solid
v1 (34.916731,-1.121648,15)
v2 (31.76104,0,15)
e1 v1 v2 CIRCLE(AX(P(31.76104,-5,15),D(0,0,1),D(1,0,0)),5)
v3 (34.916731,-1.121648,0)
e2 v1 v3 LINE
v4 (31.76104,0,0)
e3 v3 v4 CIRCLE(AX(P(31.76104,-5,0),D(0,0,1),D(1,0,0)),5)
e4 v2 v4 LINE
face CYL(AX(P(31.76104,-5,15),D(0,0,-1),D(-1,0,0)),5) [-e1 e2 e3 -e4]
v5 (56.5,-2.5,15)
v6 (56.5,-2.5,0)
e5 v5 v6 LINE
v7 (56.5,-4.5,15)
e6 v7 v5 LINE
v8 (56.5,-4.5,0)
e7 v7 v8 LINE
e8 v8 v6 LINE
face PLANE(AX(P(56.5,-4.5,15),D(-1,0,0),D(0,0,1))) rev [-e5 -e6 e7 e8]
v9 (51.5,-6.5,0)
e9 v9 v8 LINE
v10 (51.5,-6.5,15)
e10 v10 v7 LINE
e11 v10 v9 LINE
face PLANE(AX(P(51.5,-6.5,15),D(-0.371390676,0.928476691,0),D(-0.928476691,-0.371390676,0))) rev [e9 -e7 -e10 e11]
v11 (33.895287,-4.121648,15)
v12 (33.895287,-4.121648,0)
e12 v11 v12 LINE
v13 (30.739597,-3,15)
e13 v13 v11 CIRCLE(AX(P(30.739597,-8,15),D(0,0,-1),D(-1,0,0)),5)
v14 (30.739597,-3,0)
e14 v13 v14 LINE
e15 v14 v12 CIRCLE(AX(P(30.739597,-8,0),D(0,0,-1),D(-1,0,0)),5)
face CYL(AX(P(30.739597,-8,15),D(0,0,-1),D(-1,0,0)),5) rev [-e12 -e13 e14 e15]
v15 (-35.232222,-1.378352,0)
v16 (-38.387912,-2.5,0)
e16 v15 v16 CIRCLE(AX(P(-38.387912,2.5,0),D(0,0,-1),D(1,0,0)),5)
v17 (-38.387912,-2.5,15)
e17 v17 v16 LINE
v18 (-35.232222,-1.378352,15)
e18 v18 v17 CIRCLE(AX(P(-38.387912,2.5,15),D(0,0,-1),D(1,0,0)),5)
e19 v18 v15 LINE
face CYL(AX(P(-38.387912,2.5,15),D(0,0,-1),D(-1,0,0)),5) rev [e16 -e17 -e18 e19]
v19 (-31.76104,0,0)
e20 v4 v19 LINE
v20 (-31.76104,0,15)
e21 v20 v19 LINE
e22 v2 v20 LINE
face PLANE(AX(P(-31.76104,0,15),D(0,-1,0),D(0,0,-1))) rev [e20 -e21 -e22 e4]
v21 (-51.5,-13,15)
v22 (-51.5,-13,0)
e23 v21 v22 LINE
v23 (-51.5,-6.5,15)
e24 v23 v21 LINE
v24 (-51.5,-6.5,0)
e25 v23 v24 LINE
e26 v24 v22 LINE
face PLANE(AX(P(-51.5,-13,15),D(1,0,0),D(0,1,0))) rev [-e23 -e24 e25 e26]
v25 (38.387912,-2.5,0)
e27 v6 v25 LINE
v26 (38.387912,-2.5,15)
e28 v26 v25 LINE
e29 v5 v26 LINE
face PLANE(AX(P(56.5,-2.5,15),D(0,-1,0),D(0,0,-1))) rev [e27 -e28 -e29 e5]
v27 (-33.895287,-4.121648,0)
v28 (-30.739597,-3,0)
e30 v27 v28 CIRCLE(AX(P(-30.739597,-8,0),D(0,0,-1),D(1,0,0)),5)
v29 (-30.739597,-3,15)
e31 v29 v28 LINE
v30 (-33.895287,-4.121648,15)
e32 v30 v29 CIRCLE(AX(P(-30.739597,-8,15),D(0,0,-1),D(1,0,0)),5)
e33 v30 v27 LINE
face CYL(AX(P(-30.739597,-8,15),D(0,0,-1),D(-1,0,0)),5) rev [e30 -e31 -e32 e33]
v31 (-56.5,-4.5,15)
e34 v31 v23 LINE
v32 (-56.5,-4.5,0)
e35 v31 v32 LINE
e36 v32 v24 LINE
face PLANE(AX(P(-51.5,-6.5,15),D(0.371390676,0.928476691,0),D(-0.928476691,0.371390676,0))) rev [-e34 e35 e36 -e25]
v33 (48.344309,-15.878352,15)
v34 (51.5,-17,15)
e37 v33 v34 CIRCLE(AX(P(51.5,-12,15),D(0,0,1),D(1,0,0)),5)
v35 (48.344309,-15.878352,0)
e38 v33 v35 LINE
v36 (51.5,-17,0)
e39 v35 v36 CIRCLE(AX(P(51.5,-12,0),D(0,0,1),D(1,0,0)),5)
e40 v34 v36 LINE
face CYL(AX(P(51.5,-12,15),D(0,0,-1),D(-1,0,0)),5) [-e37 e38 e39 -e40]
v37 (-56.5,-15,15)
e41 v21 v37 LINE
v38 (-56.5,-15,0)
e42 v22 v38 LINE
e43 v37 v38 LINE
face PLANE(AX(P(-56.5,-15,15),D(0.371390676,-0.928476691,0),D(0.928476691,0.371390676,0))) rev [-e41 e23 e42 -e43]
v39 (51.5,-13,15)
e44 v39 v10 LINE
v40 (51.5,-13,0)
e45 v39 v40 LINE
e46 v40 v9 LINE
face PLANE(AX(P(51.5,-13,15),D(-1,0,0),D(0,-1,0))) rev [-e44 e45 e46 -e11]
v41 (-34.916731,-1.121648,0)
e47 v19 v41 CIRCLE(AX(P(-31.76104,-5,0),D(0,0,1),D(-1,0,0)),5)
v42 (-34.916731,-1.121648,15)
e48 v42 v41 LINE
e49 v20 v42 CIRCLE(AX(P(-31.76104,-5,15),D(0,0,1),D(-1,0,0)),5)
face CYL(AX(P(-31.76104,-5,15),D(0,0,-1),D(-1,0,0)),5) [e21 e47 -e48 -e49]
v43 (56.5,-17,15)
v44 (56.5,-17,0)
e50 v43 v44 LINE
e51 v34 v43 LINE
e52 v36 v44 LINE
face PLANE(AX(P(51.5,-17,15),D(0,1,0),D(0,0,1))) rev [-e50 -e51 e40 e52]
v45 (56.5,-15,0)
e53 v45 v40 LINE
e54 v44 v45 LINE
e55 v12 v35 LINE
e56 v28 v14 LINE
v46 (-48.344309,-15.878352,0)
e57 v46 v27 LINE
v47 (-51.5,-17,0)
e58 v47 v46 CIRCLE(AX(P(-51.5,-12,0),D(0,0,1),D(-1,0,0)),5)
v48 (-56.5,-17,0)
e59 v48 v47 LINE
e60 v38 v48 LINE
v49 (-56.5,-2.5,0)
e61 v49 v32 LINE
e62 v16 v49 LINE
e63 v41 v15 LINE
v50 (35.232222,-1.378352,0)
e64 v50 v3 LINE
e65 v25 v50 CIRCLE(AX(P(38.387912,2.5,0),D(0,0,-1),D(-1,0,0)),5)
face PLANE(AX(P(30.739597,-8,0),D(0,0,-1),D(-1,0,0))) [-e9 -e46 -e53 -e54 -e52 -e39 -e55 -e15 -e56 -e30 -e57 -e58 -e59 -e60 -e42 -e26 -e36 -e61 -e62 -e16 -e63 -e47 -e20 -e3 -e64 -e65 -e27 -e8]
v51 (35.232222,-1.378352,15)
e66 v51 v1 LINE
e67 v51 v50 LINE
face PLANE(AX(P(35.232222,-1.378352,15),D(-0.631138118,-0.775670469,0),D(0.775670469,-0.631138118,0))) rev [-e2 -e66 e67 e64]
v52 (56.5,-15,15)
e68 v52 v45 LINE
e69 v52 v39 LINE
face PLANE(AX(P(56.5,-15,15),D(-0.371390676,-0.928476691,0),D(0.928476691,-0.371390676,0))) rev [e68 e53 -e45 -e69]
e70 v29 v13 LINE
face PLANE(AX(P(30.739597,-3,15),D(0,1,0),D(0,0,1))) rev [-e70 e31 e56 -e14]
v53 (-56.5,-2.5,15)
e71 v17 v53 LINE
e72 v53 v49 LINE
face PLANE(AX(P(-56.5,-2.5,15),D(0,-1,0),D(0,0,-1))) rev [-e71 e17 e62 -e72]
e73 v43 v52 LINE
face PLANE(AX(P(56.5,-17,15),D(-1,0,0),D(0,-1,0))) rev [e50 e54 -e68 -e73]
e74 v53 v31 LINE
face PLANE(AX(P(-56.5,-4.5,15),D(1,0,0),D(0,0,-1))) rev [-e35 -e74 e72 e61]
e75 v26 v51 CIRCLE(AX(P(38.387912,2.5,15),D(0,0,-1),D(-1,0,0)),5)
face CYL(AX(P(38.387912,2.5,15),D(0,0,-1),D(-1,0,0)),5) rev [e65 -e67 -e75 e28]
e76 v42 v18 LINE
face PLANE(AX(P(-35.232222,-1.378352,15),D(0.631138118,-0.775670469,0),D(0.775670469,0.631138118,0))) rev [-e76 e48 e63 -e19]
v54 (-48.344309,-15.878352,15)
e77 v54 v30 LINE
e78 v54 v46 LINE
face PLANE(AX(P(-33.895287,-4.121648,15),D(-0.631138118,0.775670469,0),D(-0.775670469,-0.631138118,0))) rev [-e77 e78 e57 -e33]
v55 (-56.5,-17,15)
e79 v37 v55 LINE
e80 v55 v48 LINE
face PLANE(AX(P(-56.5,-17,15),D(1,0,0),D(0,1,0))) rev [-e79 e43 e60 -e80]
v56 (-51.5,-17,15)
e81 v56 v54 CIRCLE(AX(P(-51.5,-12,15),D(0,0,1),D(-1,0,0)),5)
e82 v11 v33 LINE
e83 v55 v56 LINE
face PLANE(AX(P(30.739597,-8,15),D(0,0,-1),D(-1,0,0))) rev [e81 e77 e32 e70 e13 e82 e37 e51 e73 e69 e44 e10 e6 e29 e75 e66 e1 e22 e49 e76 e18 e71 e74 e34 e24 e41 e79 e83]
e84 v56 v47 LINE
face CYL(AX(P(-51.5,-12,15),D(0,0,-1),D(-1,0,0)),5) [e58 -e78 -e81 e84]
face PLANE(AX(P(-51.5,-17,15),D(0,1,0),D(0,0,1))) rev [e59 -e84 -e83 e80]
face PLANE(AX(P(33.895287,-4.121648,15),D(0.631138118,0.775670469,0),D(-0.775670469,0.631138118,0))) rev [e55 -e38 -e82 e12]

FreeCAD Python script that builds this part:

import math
import FreeCAD as App
import Part
import Sketcher
Q = App.Units.Quantity

doc = App.newDocument("Part")
body = doc.addObject("PartDesign::Body", "Body")

sketch1 = doc.addObject("Sketcher::SketchObject", "Sketch")
body.addObject(sketch1)
sketch1.AttachmentSupport = (doc.XY_Plane, [""])
sketch1.MapMode = "FlatFace"
sketch1.addGeometry([
    Part.LineSegment(App.Vector(-30.74, -3, 0), App.Vector(30.74, -3, 0)),
    Part.ArcOfCircle(Part.Circle(App.Vector(30.74, -8, 0), App.Vector(0, 0, 1), 5), math.radians(51), math.radians(90)),
    Part.LineSegment(App.Vector(33.9, -4.12, 0), App.Vector(48.34, -15.88, 0)),
    Part.ArcOfCircle(Part.Circle(App.Vector(51.5, -12, 0), App.Vector(0, 0, 1), 5), math.radians(-129), math.radians(-90)),
    Part.LineSegment(App.Vector(51.5, -17, 0), App.Vector(56.5, -17, 0)),
    Part.LineSegment(App.Vector(56.5, -17, 0), App.Vector(56.5, -15, 0)),
    Part.LineSegment(App.Vector(56.5, -15, 0), App.Vector(51.5, -13, 0)),
    Part.LineSegment(App.Vector(51.5, -13, 0), App.Vector(51.5, -6.5, 0)),
    Part.LineSegment(App.Vector(51.5, -6.5, 0), App.Vector(56.5, -4.5, 0)),
    Part.LineSegment(App.Vector(56.5, -4.5, 0), App.Vector(56.5, -2.5, 0)),
    Part.LineSegment(App.Vector(56.5, -2.5, 0), App.Vector(38.39, -2.5, 0)),
    Part.ArcOfCircle(Part.Circle(App.Vector(38.39, 2.5, 0), App.Vector(0, 0, 1), 5), math.radians(-129), math.radians(-90)),
    Part.LineSegment(App.Vector(35.23, -1.38, 0), App.Vector(34.92, -1.12, 0)),
    Part.ArcOfCircle(Part.Circle(App.Vector(31.76, -5, 0), App.Vector(0, 0, 1), 5), math.radians(51), math.radians(90)),
    Part.LineSegment(App.Vector(31.76, 0, 0), App.Vector(-31.76, 0, 0)),
    Part.ArcOfCircle(Part.Circle(App.Vector(-31.76, -5, 0), App.Vector(0, 0, 1), 5), math.radians(90), math.radians(129)),
    Part.LineSegment(App.Vector(-34.92, -1.12, 0), App.Vector(-35.23, -1.38, 0)),
    Part.ArcOfCircle(Part.Circle(App.Vector(-38.39, 2.5, 0), App.Vector(0, 0, 1), 5), math.radians(-90), math.radians(-51)),
    Part.LineSegment(App.Vector(-38.39, -2.5, 0), App.Vector(-56.5, -2.5, 0)),
    Part.LineSegment(App.Vector(-56.5, -2.5, 0), App.Vector(-56.5, -4.5, 0)),
    Part.LineSegment(App.Vector(-56.5, -4.5, 0), App.Vector(-51.5, -6.5, 0)),
    Part.LineSegment(App.Vector(-51.5, -6.5, 0), App.Vector(-51.5, -13, 0)),
    Part.LineSegment(App.Vector(-51.5, -13, 0), App.Vector(-56.5, -15, 0)),
    Part.LineSegment(App.Vector(-56.5, -15, 0), App.Vector(-56.5, -17, 0)),
    Part.LineSegment(App.Vector(-56.5, -17, 0), App.Vector(-51.5, -17, 0)),
    Part.ArcOfCircle(Part.Circle(App.Vector(-51.5, -12, 0), App.Vector(0, 0, 1), 5), math.radians(-90), math.radians(-51)),
    Part.LineSegment(App.Vector(-48.34, -15.88, 0), App.Vector(-33.9, -4.12, 0)),
    Part.ArcOfCircle(Part.Circle(App.Vector(-30.74, -8, 0), App.Vector(0, 0, 1), 5), math.radians(90), math.radians(129)),
], False)
sketch1.addConstraint([
    Sketcher.Constraint("Tangent", 0, 2, 1, 2),
    Sketcher.Constraint("Tangent", 1, 1, 2, 1),
    Sketcher.Constraint("Tangent", 2, 2, 3, 1),
    Sketcher.Constraint("Tangent", 3, 2, 4, 1),
    Sketcher.Constraint("Coincident", 4, 2, 5, 1),
    Sketcher.Constraint("Coincident", 5, 2, 6, 1),
    Sketcher.Constraint("Coincident", 6, 2, 7, 1),
    Sketcher.Constraint("Coincident", 7, 2, 8, 1),
    Sketcher.Constraint("Coincident", 8, 2, 9, 1),
    Sketcher.Constraint("Coincident", 9, 2, 10, 1),
    Sketcher.Constraint("Tangent", 10, 2, 11, 2),
    Sketcher.Constraint("Tangent", 11, 1, 12, 1),
    Sketcher.Constraint("Tangent", 12, 2, 13, 1),
    Sketcher.Constraint("Tangent", 13, 2, 14, 1),
    Sketcher.Constraint("Tangent", 14, 2, 15, 1),
    Sketcher.Constraint("Tangent", 15, 2, 16, 1),
    Sketcher.Constraint("Tangent", 16, 2, 17, 2),
    Sketcher.Constraint("Tangent", 17, 1, 18, 1),
    Sketcher.Constraint("Coincident", 18, 2, 19, 1),
    Sketcher.Constraint("Coincident", 19, 2, 20, 1),
    Sketcher.Constraint("Coincident", 20, 2, 21, 1),
    Sketcher.Constraint("Coincident", 21, 2, 22, 1),
    Sketcher.Constraint("Coincident", 22, 2, 23, 1),
    Sketcher.Constraint("Coincident", 23, 2, 24, 1),
    Sketcher.Constraint("Tangent", 24, 2, 25, 1),
    Sketcher.Constraint("Tangent", 25, 2, 26, 1),
    Sketcher.Constraint("Tangent", 26, 2, 27, 2),
    Sketcher.Constraint("Tangent", 27, 1, 0, 1),
    Sketcher.Constraint("Horizontal", 0),
    Sketcher.Constraint("Horizontal", 4),
    Sketcher.Constraint("Vertical", 5),
    Sketcher.Constraint("Vertical", 7),
    Sketcher.Constraint("Vertical", 9),
    Sketcher.Constraint("Horizontal", 10),
    Sketcher.Constraint("Horizontal", 14),
    Sketcher.Constraint("Horizontal", 18),
    Sketcher.Constraint("Vertical", 19),
    Sketcher.Constraint("Vertical", 21),
    Sketcher.Constraint("Vertical", 23),
    Sketcher.Constraint("Horizontal", 24),
    Sketcher.Constraint("Equal", 1, 3),
    Sketcher.Constraint("Equal", 3, 11),
    Sketcher.Constraint("Equal", 11, 13),
    Sketcher.Constraint("Equal", 13, 15),
    Sketcher.Constraint("Equal", 15, 17),
    Sketcher.Constraint("Equal", 17, 25),
    Sketcher.Constraint("Equal", 25, 27),
    Sketcher.Constraint("Symmetric", 13, 2, 14, 2, -1, 1),
    Sketcher.Constraint("Symmetric", 11, 3, 17, 3, -2),
    Sketcher.Constraint("Symmetric", 3, 3, 25, 3, -2),
    Sketcher.Constraint("Symmetric", 8, 2, 19, 2, -2),
    Sketcher.Constraint("Symmetric", 7, 2, 20, 2, -2),
    Sketcher.Constraint("Symmetric", 5, 2, 22, 2, -2),
    Sketcher.Constraint("Parallel", 2, 12),
    Sketcher.Constraint("Parallel", 6, 20),
    Sketcher.Constraint("Parallel", 8, 22),
    Sketcher.Constraint("Parallel", 16, 26),
    Sketcher.Constraint("Vertical", 3, 2, 6, 2),
    Sketcher.Constraint("Vertical", 5, 2, 8, 2),
    Sketcher.Constraint("Equal", 5, 9),
    Sketcher.Constraint("Radius", 1, Q("5 mm")),
    Sketcher.Constraint("DistanceX", 4, 1, 4, 2, Q("5 mm")),
    Sketcher.Constraint("DistanceY", 5, 1, 5, 2, Q("2 mm")),
    Sketcher.Constraint("DistanceY", 7, 1, 7, 2, Q("6.5 mm")),
    Sketcher.Constraint("DistanceY", 1, 3, -1, 1, Q("8 mm")),
    Sketcher.Constraint("DistanceY", 3, 3, -1, 1, Q("12 mm")),
    Sketcher.Constraint("DistanceY", 6, 2, -1, 1, Q("13 mm")),
    Sketcher.Constraint("DistanceX", -1, 1, 3, 3, Q("51.5 mm")),
    Sketcher.Constraint("DistanceX", 14, 2, 14, 1, Q("63.522081 mm")),
    Sketcher.Constraint("DistanceX", 0, 1, 0, 2, Q("61.479193 mm")),
])
pad1 = doc.addObject("PartDesign::Pad", "Pad")
body.addObject(pad1)
pad1.Profile = sketch1
pad1.Length = 15

doc.recompute()
